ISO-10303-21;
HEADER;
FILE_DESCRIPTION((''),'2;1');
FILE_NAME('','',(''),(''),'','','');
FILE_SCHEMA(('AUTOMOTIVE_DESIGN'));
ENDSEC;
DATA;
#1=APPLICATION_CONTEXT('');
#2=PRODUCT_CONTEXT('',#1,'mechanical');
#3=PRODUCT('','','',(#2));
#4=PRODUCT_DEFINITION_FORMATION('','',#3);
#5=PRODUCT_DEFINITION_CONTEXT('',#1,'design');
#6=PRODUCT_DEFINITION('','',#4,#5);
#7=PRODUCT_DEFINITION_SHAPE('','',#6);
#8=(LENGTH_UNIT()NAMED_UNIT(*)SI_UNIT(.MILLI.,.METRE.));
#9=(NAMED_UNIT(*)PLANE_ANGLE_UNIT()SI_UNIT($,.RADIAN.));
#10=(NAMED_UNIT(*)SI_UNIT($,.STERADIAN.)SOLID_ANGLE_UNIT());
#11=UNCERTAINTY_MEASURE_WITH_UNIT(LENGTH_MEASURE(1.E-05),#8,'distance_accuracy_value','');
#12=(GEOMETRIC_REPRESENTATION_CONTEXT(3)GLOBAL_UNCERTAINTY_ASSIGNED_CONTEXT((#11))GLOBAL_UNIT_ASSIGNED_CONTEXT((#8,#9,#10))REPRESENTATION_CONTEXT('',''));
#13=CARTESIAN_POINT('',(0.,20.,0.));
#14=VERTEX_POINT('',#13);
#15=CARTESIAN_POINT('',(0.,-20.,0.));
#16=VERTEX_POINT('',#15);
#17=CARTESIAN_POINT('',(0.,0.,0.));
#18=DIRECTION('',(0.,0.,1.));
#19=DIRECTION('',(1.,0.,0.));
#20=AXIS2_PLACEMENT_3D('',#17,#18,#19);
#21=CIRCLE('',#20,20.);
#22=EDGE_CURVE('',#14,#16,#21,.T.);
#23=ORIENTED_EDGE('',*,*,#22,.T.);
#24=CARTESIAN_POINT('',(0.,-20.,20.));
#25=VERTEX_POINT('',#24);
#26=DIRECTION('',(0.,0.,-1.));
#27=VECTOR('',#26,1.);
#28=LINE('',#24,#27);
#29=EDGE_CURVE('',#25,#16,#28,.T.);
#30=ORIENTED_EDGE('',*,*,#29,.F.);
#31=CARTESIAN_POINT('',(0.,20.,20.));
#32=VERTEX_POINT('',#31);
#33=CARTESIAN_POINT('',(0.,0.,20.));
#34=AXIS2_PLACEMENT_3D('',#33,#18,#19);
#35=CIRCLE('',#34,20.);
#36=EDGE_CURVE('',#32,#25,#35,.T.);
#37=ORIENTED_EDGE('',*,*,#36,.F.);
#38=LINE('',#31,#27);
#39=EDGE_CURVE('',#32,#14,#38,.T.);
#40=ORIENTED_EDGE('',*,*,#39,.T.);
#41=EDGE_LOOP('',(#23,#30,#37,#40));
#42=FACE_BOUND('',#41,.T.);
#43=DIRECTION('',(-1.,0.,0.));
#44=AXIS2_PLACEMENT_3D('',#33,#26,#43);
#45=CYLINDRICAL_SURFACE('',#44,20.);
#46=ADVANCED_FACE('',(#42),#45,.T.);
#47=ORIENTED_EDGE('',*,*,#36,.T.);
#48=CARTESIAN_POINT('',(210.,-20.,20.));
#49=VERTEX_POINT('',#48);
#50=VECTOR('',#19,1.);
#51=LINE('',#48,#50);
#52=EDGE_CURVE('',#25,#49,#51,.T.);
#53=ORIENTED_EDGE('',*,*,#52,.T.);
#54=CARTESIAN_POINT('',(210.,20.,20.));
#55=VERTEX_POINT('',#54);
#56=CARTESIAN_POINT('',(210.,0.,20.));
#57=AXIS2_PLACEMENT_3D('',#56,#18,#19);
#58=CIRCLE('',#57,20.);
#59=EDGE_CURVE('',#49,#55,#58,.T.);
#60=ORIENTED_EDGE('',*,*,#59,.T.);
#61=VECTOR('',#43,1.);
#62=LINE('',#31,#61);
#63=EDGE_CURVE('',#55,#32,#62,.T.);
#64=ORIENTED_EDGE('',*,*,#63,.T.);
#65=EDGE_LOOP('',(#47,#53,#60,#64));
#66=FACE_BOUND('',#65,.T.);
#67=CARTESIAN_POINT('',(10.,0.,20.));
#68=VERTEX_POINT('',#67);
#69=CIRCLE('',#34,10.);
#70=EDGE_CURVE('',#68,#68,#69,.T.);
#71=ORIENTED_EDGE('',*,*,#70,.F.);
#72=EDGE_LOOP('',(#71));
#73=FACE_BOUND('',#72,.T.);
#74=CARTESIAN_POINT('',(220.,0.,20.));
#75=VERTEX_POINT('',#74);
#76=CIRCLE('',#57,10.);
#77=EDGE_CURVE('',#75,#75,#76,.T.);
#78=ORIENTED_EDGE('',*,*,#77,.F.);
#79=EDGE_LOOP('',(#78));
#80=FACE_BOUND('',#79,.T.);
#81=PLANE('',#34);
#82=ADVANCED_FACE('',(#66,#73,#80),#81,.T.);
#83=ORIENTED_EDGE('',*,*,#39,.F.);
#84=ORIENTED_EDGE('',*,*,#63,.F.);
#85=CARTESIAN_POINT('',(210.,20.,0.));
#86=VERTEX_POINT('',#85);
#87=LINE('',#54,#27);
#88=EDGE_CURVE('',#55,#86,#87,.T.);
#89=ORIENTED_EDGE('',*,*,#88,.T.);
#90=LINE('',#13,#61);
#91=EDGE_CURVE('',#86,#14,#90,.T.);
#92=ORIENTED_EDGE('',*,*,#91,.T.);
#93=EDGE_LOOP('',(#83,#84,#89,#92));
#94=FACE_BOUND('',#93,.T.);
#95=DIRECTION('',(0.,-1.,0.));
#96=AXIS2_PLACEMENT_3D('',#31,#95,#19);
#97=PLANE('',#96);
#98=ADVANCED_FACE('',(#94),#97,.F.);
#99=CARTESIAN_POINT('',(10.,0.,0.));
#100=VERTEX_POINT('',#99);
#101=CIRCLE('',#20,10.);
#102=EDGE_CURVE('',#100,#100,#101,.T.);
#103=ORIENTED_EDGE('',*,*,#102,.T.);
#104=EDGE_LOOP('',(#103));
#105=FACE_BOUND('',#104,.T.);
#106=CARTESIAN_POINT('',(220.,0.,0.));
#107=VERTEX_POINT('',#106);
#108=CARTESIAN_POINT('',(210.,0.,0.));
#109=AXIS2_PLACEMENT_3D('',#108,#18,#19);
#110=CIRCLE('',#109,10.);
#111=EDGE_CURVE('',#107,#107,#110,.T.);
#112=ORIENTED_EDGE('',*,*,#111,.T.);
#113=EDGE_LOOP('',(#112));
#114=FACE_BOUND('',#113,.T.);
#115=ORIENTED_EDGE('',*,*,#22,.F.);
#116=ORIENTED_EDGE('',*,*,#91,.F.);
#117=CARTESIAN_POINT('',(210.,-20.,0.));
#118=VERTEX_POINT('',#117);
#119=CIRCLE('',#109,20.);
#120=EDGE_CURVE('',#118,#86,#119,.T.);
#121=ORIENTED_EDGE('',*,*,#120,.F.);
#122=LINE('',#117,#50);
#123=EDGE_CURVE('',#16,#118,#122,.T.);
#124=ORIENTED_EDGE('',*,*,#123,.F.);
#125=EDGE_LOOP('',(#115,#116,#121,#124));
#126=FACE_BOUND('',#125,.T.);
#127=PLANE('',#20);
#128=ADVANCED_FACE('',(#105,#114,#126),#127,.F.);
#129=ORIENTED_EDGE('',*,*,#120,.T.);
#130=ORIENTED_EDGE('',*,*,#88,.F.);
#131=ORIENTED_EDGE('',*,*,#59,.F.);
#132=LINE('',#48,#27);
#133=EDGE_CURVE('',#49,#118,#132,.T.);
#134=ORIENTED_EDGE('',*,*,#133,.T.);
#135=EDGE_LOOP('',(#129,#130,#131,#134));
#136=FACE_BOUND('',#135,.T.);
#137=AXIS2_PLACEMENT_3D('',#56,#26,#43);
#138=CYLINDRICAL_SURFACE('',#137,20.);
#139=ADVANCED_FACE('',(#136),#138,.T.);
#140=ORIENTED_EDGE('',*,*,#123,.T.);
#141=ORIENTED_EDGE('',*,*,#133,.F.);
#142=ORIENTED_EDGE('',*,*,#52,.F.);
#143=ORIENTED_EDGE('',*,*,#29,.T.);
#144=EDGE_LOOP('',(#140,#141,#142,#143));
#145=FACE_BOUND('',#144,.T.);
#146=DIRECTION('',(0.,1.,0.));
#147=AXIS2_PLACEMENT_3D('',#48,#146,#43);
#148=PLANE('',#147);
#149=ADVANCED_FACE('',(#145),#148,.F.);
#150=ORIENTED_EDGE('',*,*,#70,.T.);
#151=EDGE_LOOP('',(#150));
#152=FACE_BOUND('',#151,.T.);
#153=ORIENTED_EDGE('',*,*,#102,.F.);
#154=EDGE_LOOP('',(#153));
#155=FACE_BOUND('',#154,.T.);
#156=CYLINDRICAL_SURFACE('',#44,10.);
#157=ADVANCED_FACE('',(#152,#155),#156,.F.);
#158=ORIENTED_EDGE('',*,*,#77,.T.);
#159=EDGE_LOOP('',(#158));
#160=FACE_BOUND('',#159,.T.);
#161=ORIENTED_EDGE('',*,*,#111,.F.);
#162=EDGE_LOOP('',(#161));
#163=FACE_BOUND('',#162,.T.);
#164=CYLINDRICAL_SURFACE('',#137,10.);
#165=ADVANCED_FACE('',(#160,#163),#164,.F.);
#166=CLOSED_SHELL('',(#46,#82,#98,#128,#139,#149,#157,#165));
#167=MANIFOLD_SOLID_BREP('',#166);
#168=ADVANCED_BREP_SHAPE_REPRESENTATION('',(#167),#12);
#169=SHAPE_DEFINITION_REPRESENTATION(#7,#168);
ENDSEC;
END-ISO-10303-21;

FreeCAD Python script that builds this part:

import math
import FreeCAD as App
import Part
import Sketcher

V = App.Vector
Q = App.Units.Quantity

doc = App.newDocument("Part")
params = doc.addObject("Spreadsheet::Sheet", "Params")
for row, (alias, value) in enumerate([
    ("sketch1_diameter", "20 mm"),
    ("sketch1_radius", "20 mm"),
    ("sketch1_width", "210 mm"),
    ("pad1_length", "20 mm"),
], start=1):
    params.set(f"A{row}", alias)
    params.set(f"B{row}", "=" + value)
    params.setAlias(f"B{row}", alias)

body = doc.addObject("PartDesign::Body", "Body")

# Sketch on XY plane
sketch1 = doc.addObject("Sketcher::SketchObject", "Sketch")
body.addObject(sketch1)
sketch1.AttachmentSupport = (doc.XY_Plane, [""])
sketch1.MapMode = "FlatFace"
sketch1.addGeometry([
    Part.LineSegment(V(210, 20, 0), V(0, 20, 0)),  # 0
    Part.ArcOfCircle(Part.Circle(V(0, 0, 0), V(0, 0, 1), 20), math.radians(90), math.radians(270)),  # 1
    Part.LineSegment(V(0, -20, 0), V(210, -20, 0)),  # 2
    Part.ArcOfCircle(Part.Circle(V(210, 0, 0), V(0, 0, 1), 20), math.radians(-90), math.radians(90)),  # 3
    Part.Circle(V(210, 0, 0), V(0, 0, 1), 10),  # 4
    Part.Circle(V(0, 0, 0), V(0, 0, 1), 10),  # 5
], False)
sketch1.addConstraint([
    Sketcher.Constraint("Tangent", 0, 2, 1, 1),
    Sketcher.Constraint("Tangent", 1, 2, 2, 1),
    Sketcher.Constraint("Tangent", 2, 2, 3, 1),
    Sketcher.Constraint("Tangent", 3, 2, 0, 1),
    Sketcher.Constraint("Horizontal", 0),
    Sketcher.Constraint("Horizontal", 2),
    Sketcher.Constraint("Coincident", 1, 3, -1, 1),
    Sketcher.Constraint("Coincident", 5, 3, -1, 1),
    Sketcher.Constraint("Coincident", 4, 3, 3, 3),
    Sketcher.Constraint("Equal", 4, 5),
    Sketcher.Constraint("Diameter", 4, Q("20 mm")),
    Sketcher.Constraint("Radius", 1, Q("20 mm")),
    Sketcher.Constraint("DistanceX", 0, 2, 0, 1, Q("210 mm")),
])
sketch1.setExpression("Constraints[10]", "Params.sketch1_diameter")
sketch1.setExpression("Constraints[11]", "Params.sketch1_radius")
sketch1.setExpression("Constraints[12]", "Params.sketch1_width")
pad1 = doc.addObject("PartDesign::Pad", "Pad")
body.addObject(pad1)
pad1.Profile = sketch1
pad1.setExpression("Length", "Params.pad1_length")

doc.recompute()
